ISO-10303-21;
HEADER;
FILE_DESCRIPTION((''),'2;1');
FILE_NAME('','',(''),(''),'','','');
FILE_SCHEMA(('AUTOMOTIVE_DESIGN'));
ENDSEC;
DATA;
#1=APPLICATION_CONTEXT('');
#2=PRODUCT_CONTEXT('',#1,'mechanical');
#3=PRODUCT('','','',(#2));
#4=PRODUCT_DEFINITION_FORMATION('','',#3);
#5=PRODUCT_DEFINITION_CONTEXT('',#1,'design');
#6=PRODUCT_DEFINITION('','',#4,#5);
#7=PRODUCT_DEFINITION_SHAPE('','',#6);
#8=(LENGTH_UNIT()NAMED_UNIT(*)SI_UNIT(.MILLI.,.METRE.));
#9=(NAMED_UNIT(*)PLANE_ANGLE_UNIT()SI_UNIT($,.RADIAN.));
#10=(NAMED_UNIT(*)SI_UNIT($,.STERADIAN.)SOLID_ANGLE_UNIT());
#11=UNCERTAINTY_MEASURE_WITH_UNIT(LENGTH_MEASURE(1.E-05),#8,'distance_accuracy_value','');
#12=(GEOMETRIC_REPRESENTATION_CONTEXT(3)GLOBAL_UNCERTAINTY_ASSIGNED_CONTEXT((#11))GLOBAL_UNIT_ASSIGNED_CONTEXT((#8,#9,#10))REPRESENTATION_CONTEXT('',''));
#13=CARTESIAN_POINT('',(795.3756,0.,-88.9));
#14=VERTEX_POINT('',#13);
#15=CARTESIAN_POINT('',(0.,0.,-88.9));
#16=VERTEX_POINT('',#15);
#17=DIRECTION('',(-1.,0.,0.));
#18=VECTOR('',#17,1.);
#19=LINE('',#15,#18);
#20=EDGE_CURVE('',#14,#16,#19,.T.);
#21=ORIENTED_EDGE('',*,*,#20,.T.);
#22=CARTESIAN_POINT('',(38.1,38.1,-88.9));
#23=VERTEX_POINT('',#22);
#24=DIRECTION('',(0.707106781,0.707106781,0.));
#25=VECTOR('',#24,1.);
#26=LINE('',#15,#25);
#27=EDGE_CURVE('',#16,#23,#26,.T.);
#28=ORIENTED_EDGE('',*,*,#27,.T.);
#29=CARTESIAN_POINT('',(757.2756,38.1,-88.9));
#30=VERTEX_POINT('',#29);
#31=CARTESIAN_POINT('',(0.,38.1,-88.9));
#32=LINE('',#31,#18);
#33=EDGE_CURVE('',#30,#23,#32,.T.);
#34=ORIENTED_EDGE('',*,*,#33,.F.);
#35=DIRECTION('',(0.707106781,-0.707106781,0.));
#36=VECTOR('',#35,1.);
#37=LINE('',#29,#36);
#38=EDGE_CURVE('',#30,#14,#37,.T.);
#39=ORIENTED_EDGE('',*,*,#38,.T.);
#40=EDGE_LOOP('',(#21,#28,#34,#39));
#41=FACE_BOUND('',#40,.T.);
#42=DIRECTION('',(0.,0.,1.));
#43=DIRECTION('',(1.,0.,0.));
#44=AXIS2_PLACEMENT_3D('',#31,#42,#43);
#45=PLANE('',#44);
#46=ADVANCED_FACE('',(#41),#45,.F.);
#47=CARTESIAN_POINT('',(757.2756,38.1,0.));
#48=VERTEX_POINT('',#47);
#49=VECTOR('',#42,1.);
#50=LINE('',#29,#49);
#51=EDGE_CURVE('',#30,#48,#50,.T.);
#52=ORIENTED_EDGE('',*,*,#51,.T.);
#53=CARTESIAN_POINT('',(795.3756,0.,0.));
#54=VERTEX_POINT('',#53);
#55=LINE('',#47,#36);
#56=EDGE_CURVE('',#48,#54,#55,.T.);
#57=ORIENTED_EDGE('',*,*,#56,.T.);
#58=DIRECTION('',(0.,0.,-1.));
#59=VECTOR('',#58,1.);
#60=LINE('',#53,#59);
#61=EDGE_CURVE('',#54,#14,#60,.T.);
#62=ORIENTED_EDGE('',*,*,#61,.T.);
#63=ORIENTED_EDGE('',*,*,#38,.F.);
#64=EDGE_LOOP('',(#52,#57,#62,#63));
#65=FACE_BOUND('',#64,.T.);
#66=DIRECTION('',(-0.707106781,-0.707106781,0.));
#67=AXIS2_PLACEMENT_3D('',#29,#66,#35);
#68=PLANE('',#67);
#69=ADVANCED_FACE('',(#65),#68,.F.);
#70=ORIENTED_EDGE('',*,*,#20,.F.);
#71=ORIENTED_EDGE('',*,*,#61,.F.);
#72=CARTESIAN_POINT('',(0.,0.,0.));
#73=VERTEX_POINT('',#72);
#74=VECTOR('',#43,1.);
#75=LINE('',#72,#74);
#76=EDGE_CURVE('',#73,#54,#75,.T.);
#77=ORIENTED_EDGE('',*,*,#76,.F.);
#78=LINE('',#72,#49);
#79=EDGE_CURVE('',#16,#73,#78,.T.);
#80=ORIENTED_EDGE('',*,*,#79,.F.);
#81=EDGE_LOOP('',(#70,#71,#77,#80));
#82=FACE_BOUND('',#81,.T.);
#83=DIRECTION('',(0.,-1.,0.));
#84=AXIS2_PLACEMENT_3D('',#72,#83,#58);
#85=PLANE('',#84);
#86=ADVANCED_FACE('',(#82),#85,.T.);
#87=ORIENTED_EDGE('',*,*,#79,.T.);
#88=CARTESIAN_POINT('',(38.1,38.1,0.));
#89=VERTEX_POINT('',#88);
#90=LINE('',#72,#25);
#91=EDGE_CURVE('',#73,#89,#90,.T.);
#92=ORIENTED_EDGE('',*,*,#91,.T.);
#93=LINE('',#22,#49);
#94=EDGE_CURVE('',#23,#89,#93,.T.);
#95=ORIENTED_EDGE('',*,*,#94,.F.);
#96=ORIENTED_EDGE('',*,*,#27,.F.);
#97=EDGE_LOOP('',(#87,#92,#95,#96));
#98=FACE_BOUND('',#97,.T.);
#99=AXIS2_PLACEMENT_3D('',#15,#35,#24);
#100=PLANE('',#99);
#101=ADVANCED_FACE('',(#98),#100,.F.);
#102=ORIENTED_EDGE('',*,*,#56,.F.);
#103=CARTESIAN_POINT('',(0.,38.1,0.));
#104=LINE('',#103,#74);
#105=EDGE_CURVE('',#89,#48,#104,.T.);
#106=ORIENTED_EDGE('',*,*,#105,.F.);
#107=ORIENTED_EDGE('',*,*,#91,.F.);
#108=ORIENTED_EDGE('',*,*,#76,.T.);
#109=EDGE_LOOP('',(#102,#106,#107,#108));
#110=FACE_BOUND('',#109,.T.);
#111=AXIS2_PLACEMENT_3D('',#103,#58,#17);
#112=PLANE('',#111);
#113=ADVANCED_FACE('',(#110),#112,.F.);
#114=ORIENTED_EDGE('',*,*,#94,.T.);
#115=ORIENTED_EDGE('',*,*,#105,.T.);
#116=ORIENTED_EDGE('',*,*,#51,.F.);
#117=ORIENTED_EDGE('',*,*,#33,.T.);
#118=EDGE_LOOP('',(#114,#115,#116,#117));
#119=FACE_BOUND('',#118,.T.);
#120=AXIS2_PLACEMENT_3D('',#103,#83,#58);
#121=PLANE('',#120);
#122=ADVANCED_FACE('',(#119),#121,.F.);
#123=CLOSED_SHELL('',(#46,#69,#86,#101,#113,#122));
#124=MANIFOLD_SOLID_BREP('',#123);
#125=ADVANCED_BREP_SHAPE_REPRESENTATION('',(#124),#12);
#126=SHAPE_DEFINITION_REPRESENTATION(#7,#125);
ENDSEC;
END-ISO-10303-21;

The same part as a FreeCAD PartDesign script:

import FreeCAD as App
import Part
import Sketcher
Q = App.Units.Quantity


def add_polygon(sketch, points):
    """Adds a closed chain of lines whose ends are joined by coincident constraints."""
    first, n = sketch.GeometryCount, len(points)
    for a, b in zip(points, points[1:] + points[:1]):
        sketch.addGeometry(Part.LineSegment(App.Vector(*a, 0), App.Vector(*b, 0)), False)
    for i in range(n):
        sketch.addConstraint(Sketcher.Constraint("Coincident", first + i, 2, first + (i + 1) % n, 1))

doc = App.newDocument("Part")
params = doc.addObject("Spreadsheet::Sheet", "Params")
for row, (alias, value) in enumerate([
    ("sketch1_height", "3.5 in"),
    ("sketch1_width", "31.314 in"),
    ("pad1_length", "1.5 in"),
    ("sketch2_width", "1.5 in"),
], start=1):
    params.set(f"A{row}", alias)
    params.set(f"B{row}", "=" + value)
    params.setAlias(f"B{row}", alias)

body = doc.addObject("PartDesign::Body", "Body")

# Sketch on XZ plane
sketch1 = body.newObject("Sketcher::SketchObject", "Sketch")
sketch1.AttachmentSupport = (doc.getObject("XZ_Plane"), [""])
sketch1.MapMode = "FlatFace"
add_polygon(sketch1, [(0, -89), (0, 0), (795, 0), (795, -89)])  # lines 0-3
sketch1.addConstraint([
    Sketcher.Constraint("Vertical", 0),
    Sketcher.Constraint("Horizontal", 1),
    Sketcher.Constraint("Vertical", 2),
    Sketcher.Constraint("Horizontal", 3),
    Sketcher.Constraint("Coincident", 0, 2, -1, 1),
    Sketcher.Constraint("DistanceY", 0, 1, 0, 2, Q("3.5 in")),
    Sketcher.Constraint("DistanceX", 1, 1, 1, 2, Q("31.314 in")),
])
sketch1.setExpression("Constraints[9]", "Params.sketch1_height")
sketch1.setExpression("Constraints[10]", "Params.sketch1_width")
pad1 = body.newObject("PartDesign::Pad", "Pad")
pad1.Profile = sketch1
pad1.setExpression("Length", "Params.pad1_length")
pad1.Reversed = True

# Sketch on XY plane
sketch2 = body.newObject("Sketcher::SketchObject", "Sketch001")
sketch2.AttachmentSupport = (doc.getObject("XY_Plane"), [""])
sketch2.MapMode = "FlatFace"
add_polygon(sketch2, [(0, 0), (38, 38), (0, 38)])  # lines 0-2
add_polygon(sketch2, [(795, 0), (795, 38), (757, 38)])  # lines 3-5
sketch2.addConstraint([
    Sketcher.Constraint("Horizontal", 1),
    Sketcher.Constraint("Vertical", 2),
    Sketcher.Constraint("Vertical", 3),
    Sketcher.Constraint("Horizontal", 4),
    Sketcher.Constraint("Coincident", 2, 2, -1, 1),
    Sketcher.Constraint("PointOnObject", 5, 2, -1),
    Sketcher.Constraint("Perpendicular", 0, 5),
    Sketcher.Constraint("Horizontal", 1, 2, 3, 2),
    Sketcher.Constraint("Equal", 1, 4),
    Sketcher.Constraint("DistanceX", 1, 2, 1, 1, Q("1.5 in")),
    Sketcher.Constraint("DistanceX", -1, 1, 3, 2, Q("31.314 in")),
])
sketch2.setExpression("Constraints[15]", "Params.sketch2_width")
pocket1 = body.newObject("PartDesign::Pocket", "Pocket")
pocket1.Profile = sketch2
pocket1.Type = "ThroughAll"

doc.recompute()
